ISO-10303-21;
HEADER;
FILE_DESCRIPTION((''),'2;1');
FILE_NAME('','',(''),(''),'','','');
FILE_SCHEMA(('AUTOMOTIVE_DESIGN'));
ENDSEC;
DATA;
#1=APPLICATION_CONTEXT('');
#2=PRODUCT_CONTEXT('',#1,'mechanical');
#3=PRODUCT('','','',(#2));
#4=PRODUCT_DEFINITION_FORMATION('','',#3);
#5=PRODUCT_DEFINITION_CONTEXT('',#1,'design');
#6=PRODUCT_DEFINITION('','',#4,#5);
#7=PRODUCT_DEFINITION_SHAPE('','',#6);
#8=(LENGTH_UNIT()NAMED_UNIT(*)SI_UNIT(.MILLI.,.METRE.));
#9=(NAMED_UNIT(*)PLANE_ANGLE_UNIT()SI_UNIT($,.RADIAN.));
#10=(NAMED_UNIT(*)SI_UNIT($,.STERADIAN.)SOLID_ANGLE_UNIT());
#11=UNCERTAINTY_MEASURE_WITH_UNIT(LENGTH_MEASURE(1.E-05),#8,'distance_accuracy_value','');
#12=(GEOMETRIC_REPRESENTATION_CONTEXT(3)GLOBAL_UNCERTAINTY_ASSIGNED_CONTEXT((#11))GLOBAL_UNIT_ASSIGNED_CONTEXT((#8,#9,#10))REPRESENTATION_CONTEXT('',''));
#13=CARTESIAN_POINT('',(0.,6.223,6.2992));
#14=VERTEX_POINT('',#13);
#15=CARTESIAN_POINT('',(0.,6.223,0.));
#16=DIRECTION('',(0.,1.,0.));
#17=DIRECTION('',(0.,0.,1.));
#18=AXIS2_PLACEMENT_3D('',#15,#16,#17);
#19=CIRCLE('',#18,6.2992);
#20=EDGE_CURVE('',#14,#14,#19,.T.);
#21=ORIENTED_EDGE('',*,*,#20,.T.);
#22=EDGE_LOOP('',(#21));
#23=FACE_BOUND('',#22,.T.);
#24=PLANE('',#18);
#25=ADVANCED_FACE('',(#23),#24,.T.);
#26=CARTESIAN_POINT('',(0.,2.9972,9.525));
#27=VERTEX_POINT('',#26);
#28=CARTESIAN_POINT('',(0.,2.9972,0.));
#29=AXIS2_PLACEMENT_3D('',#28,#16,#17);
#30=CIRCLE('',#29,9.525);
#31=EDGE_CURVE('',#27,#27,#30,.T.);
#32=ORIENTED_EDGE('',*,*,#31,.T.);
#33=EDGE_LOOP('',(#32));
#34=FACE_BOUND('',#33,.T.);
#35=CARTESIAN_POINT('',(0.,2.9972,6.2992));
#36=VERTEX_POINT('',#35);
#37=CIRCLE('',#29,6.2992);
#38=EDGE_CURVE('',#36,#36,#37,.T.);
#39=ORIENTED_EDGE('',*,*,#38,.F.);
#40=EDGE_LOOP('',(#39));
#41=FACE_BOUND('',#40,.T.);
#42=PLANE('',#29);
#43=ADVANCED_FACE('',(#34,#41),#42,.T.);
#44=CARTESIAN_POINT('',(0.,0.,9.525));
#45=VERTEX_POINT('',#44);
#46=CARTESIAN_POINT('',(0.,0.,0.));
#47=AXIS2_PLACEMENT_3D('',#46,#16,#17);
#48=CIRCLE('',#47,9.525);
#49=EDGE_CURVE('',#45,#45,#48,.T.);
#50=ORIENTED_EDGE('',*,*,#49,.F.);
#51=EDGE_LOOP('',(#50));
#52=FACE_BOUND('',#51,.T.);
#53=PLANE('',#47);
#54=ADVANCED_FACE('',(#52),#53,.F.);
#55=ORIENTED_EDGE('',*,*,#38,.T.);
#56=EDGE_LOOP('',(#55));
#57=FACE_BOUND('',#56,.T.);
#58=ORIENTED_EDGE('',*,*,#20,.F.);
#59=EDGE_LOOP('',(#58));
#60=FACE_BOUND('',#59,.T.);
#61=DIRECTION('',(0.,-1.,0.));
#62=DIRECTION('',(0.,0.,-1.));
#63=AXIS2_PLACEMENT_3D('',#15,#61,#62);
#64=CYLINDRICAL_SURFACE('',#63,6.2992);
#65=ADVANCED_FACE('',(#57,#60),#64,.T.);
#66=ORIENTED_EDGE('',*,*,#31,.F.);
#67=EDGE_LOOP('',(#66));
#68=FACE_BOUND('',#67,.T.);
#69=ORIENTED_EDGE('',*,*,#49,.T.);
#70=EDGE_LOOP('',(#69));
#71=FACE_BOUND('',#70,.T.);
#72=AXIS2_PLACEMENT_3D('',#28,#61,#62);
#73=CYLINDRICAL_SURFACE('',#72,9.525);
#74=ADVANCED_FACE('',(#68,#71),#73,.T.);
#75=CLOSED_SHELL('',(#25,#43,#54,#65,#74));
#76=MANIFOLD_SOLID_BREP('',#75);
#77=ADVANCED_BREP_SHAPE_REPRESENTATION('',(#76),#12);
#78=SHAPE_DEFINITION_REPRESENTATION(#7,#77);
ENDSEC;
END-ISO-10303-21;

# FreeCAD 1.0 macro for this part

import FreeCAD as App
import Part
import Sketcher

V = App.Vector
Q = App.Units.Quantity

doc = App.newDocument("Part")
body = doc.addObject("PartDesign::Body", "Body")

# Sketch on XZ plane
sketch1 = doc.addObject("Sketcher::SketchObject", "Sketch")
body.addObject(sketch1)
sketch1.AttachmentSupport = (doc.XZ_Plane, [""])
sketch1.MapMode = "FlatFace"
sketch1.addGeometry(Part.Circle(V(0, 0, 0), V(0, 0, 1), 9.525), False)
sketch1.addConstraint(Sketcher.Constraint("Coincident", 0, 3, -1, 1))
sketch1.addConstraint(Sketcher.Constraint("Diameter", 0, Q("0.75 in")))
pad1 = doc.addObject("PartDesign::Pad", "Pad")
body.addObject(pad1)
pad1.Profile = sketch1
pad1.Length = Q("0.118 in")
pad1.Reversed = True

# Sketch on XZ plane
sketch2 = doc.addObject("Sketcher::SketchObject", "Sketch001")
body.addObject(sketch2)
sketch2.AttachmentSupport = (doc.XZ_Plane, [""])
sketch2.MapMode = "FlatFace"
sketch2.AttachmentOffset = App.Placement(V(0, 0, -0.118 * 25.4), App.Rotation())
sketch2.addGeometry(Part.Circle(V(0, 0, 0), V(0, 0, 1), 6.2992), False)
sketch2.addConstraint(Sketcher.Constraint("Coincident", 0, 3, -1, 1))
sketch2.addConstraint(Sketcher.Constraint("Diameter", 0, Q("0.496 in")))
pad2 = doc.addObject("PartDesign::Pad", "Pad001")
body.addObject(pad2)
pad2.Profile = sketch2
pad2.Length = Q("0.127 in")
pad2.Reversed = True

doc.recompute()
